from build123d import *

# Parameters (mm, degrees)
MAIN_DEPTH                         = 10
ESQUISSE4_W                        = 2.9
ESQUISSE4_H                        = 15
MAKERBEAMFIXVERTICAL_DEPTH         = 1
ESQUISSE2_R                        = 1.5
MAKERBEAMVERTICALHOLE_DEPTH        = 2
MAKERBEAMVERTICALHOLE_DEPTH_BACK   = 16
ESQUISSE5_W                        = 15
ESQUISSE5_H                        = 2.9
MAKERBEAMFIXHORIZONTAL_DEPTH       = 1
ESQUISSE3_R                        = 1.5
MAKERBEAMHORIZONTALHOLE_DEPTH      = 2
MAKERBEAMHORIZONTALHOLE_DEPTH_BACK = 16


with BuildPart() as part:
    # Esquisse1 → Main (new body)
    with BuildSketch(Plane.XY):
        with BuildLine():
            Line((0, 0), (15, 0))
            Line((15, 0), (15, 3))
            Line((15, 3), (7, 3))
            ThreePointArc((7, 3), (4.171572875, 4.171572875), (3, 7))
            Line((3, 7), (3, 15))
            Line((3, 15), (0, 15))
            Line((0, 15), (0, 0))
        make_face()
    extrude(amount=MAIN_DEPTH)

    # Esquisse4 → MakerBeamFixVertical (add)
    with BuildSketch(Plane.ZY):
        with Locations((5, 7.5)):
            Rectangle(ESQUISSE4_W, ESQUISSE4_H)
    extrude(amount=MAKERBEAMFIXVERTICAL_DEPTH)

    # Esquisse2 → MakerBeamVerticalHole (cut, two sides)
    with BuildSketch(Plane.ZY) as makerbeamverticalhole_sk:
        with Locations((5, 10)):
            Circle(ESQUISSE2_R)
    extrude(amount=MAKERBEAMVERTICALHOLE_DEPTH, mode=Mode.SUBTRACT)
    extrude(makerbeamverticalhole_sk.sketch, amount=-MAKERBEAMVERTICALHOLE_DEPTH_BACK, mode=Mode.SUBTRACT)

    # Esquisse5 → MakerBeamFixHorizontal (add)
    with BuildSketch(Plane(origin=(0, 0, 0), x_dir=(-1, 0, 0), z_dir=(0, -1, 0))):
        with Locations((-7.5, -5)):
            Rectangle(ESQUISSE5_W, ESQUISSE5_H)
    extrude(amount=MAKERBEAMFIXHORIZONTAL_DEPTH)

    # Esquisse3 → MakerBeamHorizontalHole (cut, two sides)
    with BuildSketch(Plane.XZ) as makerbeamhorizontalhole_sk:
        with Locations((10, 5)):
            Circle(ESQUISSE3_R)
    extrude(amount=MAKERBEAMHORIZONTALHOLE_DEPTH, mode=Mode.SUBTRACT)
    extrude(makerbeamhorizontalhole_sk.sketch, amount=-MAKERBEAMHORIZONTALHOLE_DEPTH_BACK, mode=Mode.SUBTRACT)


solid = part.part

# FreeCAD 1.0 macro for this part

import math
import FreeCAD as App
import Part
import Sketcher

V = App.Vector
Q = App.Units.Quantity

doc = App.newDocument("Part")
body = doc.addObject("PartDesign::Body", "Body")

# Sketch on XY plane
sketch1 = body.newObject("Sketcher::SketchObject", "Sketch")
sketch1.AttachmentSupport = (doc.getObject("XY_Plane"), [""])
sketch1.MapMode = "FlatFace"
sketch1.addGeometry([
    Part.LineSegment(V(0, 0, 0), V(15, 0, 0)),  # 0
    Part.LineSegment(V(15, 0, 0), V(15, 3, 0)),  # 1
    Part.LineSegment(V(15, 3, 0), V(7, 3, 0)),  # 2
    Part.ArcOfCircle(Part.Circle(V(7, 7, 0), V(0, 0, 1), 4), math.radians(180), math.radians(270)),  # 3
    Part.LineSegment(V(3, 7, 0), V(3, 15, 0)),  # 4
    Part.LineSegment(V(3, 15, 0), V(0, 15, 0)),  # 5
    Part.LineSegment(V(0, 15, 0), V(0, 0, 0)),  # 6
], False)
sketch1.addConstraint([
    Sketcher.Constraint("Coincident", 0, 2, 1, 1),
    Sketcher.Constraint("Coincident", 1, 2, 2, 1),
    Sketcher.Constraint("Tangent", 2, 2, 3, 2),
    Sketcher.Constraint("Tangent", 3, 1, 4, 1),
    Sketcher.Constraint("Coincident", 4, 2, 5, 1),
    Sketcher.Constraint("Coincident", 5, 2, 6, 1),
    Sketcher.Constraint("Coincident", 6, 2, 0, 1),
    Sketcher.Constraint("Horizontal", 0),
    Sketcher.Constraint("Vertical", 1),
    Sketcher.Constraint("Horizontal", 2),
    Sketcher.Constraint("Vertical", 4),
    Sketcher.Constraint("Horizontal", 5),
    Sketcher.Constraint("Vertical", 6),
    Sketcher.Constraint("Coincident", 6, 2, -1, 1),
    Sketcher.Constraint("Equal", 5, 1),
    Sketcher.Constraint("Equal", 2, 4),
    Sketcher.Constraint("Radius", 3, Q("4 mm")),
    Sketcher.Constraint("DistanceX", 0, 1, 0, 2, Q("15 mm")),
    Sketcher.Constraint("DistanceX", 2, 2, 2, 1, Q("8 mm")),
])
pad1 = body.newObject("PartDesign::Pad", "Pad")
pad1.Profile = sketch1
pad1.Length = 10

# Sketch on YZ plane
sketch2 = body.newObject("Sketcher::SketchObject", "Sketch001")
sketch2.AttachmentSupport = (doc.getObject("YZ_Plane"), [""])
sketch2.MapMode = "FlatFace"
sketch2.addGeometry([
    Part.LineSegment(V(15, 3.55, 0), V(0, 3.55, 0)),
    Part.LineSegment(V(0, 3.55, 0), V(0, 6.45, 0)),
    Part.LineSegment(V(0, 6.45, 0), V(15, 6.45, 0)),
    Part.LineSegment(V(15, 6.45, 0), V(15, 3.55, 0)),
], False)
sketch2.addConstraint([
    Sketcher.Constraint("Coincident", 0, 2, 1, 1),
    Sketcher.Constraint("Coincident", 1, 2, 2, 1),
    Sketcher.Constraint("Coincident", 2, 2, 3, 1),
    Sketcher.Constraint("Coincident", 3, 2, 0, 1),
    Sketcher.Constraint("Horizontal", 0),
    Sketcher.Constraint("Vertical", 1),
    Sketcher.Constraint("Horizontal", 2),
    Sketcher.Constraint("Vertical", 3),
    Sketcher.Constraint("PointOnObject", 0, 2, -2),
    Sketcher.Constraint("DistanceX", 0, 2, 0, 1, Q("15 mm")),
    Sketcher.Constraint("DistanceY", 1, 1, 1, 2, Q("2.9 mm")),
    Sketcher.Constraint("DistanceY", -1, 1, 0, 2, Q("3.55 mm")),
])
pad2 = body.newObject("PartDesign::Pad", "Pad001")
pad2.Profile = sketch2
pad2.Length = 1
pad2.Reversed = True

# Sketch on YZ plane
sketch3 = body.newObject("Sketcher::SketchObject", "Sketch002")
sketch3.AttachmentSupport = (doc.getObject("YZ_Plane"), [""])
sketch3.MapMode = "FlatFace"
sketch3.addGeometry(Part.Circle(V(10, 5, 0), V(0, 0, 1), 1.5), False)
sketch3.addConstraint([
    Sketcher.Constraint("Diameter", 0, Q("3 mm")),
    Sketcher.Constraint("DistanceX", -1, 1, 0, 3, Q("10 mm")),
    Sketcher.Constraint("DistanceY", -1, 1, 0, 3, Q("5 mm")),
])
pocket1 = body.newObject("PartDesign::Pocket", "Pocket")
pocket1.Profile = sketch3
pocket1.Type = "ThroughAll"
pocket1.Midplane = True

# Sketch on XZ plane
sketch4 = body.newObject("Sketcher::SketchObject", "Sketch003")
sketch4.AttachmentSupport = (doc.getObject("XZ_Plane"), [""])
sketch4.MapMode = "FlatFace"
sketch4.addGeometry([
    Part.LineSegment(V(15, 3.55, 0), V(15, 6.45, 0)),
    Part.LineSegment(V(15, 6.45, 0), V(0, 6.45, 0)),
    Part.LineSegment(V(0, 6.45, 0), V(0, 3.55, 0)),
    Part.LineSegment(V(0, 3.55, 0), V(15, 3.55, 0)),
], False)
sketch4.addConstraint([
    Sketcher.Constraint("Coincident", 0, 2, 1, 1),
    Sketcher.Constraint("Coincident", 1, 2, 2, 1),
    Sketcher.Constraint("Coincident", 2, 2, 3, 1),
    Sketcher.Constraint("Coincident", 3, 2, 0, 1),
    Sketcher.Constraint("Vertical", 0),
    Sketcher.Constraint("Horizontal", 1),
    Sketcher.Constraint("Vertical", 2),
    Sketcher.Constraint("Horizontal", 3),
    Sketcher.Constraint("PointOnObject", 1, 2, -2),
    Sketcher.Constraint("DistanceX", 1, 2, 1, 1, Q("15 mm")),
    Sketcher.Constraint("DistanceY", 0, 1, 0, 2, Q("2.9 mm")),
    Sketcher.Constraint("DistanceY", -1, 1, 0, 2, Q("6.45 mm")),
])
pad3 = body.newObject("PartDesign::Pad", "Pad002")
pad3.Profile = sketch4
pad3.Length = 1

# Sketch on XZ plane
sketch5 = body.newObject("Sketcher::SketchObject", "Sketch004")
sketch5.AttachmentSupport = (doc.getObject("XZ_Plane"), [""])
sketch5.MapMode = "FlatFace"
sketch5.addGeometry(Part.Circle(V(10, 5, 0), V(0, 0, 1), 1.5), False)
sketch5.addConstraint([
    Sketcher.Constraint("Diameter", 0, Q("3 mm")),
    Sketcher.Constraint("DistanceX", -1, 1, 0, 3, Q("10 mm")),
    Sketcher.Constraint("DistanceY", -1, 1, 0, 3, Q("5 mm")),
])
pocket2 = body.newObject("PartDesign::Pocket", "Pocket001")
pocket2.Profile = sketch5
pocket2.Type = "ThroughAll"
pocket2.Midplane = True

doc.recompute()
